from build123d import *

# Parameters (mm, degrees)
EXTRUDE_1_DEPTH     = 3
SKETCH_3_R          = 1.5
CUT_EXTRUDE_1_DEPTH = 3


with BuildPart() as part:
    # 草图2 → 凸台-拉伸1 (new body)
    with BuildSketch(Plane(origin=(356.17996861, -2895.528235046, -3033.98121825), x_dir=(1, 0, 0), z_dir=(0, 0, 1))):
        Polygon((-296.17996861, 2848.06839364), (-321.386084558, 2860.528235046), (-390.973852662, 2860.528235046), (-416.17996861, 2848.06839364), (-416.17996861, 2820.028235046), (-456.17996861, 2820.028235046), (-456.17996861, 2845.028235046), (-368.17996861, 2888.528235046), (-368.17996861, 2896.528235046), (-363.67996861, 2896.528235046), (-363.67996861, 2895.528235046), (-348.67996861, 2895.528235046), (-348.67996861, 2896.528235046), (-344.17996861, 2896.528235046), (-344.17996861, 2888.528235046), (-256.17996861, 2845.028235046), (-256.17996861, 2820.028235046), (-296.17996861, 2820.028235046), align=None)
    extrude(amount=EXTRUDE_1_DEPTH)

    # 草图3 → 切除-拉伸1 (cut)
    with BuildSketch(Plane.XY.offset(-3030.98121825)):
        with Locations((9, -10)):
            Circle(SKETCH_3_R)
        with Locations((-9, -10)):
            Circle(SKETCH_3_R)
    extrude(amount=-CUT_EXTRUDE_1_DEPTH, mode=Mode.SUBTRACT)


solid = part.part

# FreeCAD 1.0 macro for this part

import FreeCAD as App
import Part
import Sketcher


def add_polygon(sketch, points):
    """Adds a closed chain of lines whose ends are joined by coincident constraints."""
    first, n = sketch.GeometryCount, len(points)
    for a, b in zip(points, points[1:] + points[:1]):
        sketch.addGeometry(Part.LineSegment(App.Vector(*a, 0), App.Vector(*b, 0)), False)
    for i in range(n):
        sketch.addConstraint(Sketcher.Constraint("Coincident", first + i, 2, first + (i + 1) % n, 1))

doc = App.newDocument("Part")
params = doc.addObject("Spreadsheet::Sheet", "Params")
for row, (alias, value) in enumerate([
    ("sketch1_width", "40 mm"),
    ("sketch1_width2", "15 mm"),
    ("sketch1_height", "25 mm"),
    ("sketch1_height2", "8 mm"),
    ("sketch1_height3", "1 mm"),
    ("pad1_length", "3 mm"),
    ("sketch2_diameter", "3 mm"),
    ("pocket1_length", "3 mm"),
], start=1):
    params.set(f"A{row}", alias)
    params.set(f"B{row}", "=" + value)
    params.setAlias(f"B{row}", alias)

body = doc.addObject("PartDesign::Body", "Body")

# Sketch on XY plane
sketch1 = body.newObject("Sketcher::SketchObject", "Sketch")
sketch1.AttachmentSupport = (doc.getObject("XY_Plane"), [""])
sketch1.MapMode = "FlatFace"
sketch1.AttachmentOffset = App.Placement(App.Vector(0, 0, -3033.981218), App.Rotation())
add_polygon(sketch1, [(34.8, -35), (60, -47.5), (60, -75.5), (100, -75.5), (100, -50.5), (12, -7), (12, 1), (7.5, 1), (7.5, 0), (-7.5, 0), (-7.5, 1), (-12, 1), (-12, -7), (-100, -50.5), (-100, -75.5), (-60, -75.5), (-60, -47.5), (-34.8, -35)])  # lines 0-17
sketch1.addConstraint([
    Sketcher.Constraint("Vertical", 1),
    Sketcher.Constraint("Horizontal", 2),
    Sketcher.Constraint("Vertical", 3),
    Sketcher.Constraint("Vertical", 5),
    Sketcher.Constraint("Horizontal", 6),
    Sketcher.Constraint("Vertical", 7),
    Sketcher.Constraint("Horizontal", 8),
    Sketcher.Constraint("Vertical", 9),
    Sketcher.Constraint("Horizontal", 10),
    Sketcher.Constraint("Vertical", 11),
    Sketcher.Constraint("Vertical", 13),
    Sketcher.Constraint("Horizontal", 14),
    Sketcher.Constraint("Vertical", 15),
    Sketcher.Constraint("Horizontal", 17),
    Sketcher.Constraint("Symmetric", 7, 2, 8, 2, -1, 1),
    Sketcher.Constraint("Symmetric", 5, 2, 10, 2, -2),
    Sketcher.Constraint("Symmetric", 3, 2, 12, 2, -2),
    Sketcher.Constraint("Symmetric", 1, 2, 14, 2, -2),
    Sketcher.Constraint("Parallel", 0, 4),
    Sketcher.Constraint("Parallel", 12, 16),
    Sketcher.Constraint("Horizontal", 4, 2, 11, 2),
    Sketcher.Constraint("Horizontal", 0, 2, 15, 2),
    Sketcher.Constraint("DistanceX", 2, 1, 2, 2, 40.0),
    Sketcher.Constraint("DistanceX", 8, 2, 8, 1, 15.0),
    Sketcher.Constraint("DistanceY", 3, 1, 3, 2, 25.0),
    Sketcher.Constraint("DistanceY", 5, 1, 5, 2, 8.0),
    Sketcher.Constraint("DistanceY", 7, 2, 7, 1, 1.0),
    Sketcher.Constraint("DistanceX", 6, 2, 6, 1, 4.5),
    Sketcher.Constraint("DistanceX", -1, 1, 0, 2, 60.0),
    Sketcher.Constraint("DistanceY", 16, 2, -1, 1, 35.0),
    Sketcher.Constraint("DistanceY", 1, 2, -1, 1, 75.5),
    Sketcher.Constraint("DistanceX", 17, 1, 17, 2, 69.587768),
])
sketch1.setExpression("Constraints[40]", "Params.sketch1_width")
sketch1.setExpression("Constraints[41]", "Params.sketch1_width2")
sketch1.setExpression("Constraints[42]", "Params.sketch1_height")
sketch1.setExpression("Constraints[43]", "Params.sketch1_height2")
sketch1.setExpression("Constraints[44]", "Params.sketch1_height3")
pad1 = body.newObject("PartDesign::Pad", "Pad")
pad1.Profile = sketch1
pad1.setExpression("Length", "Params.pad1_length")

# Sketch on XY plane
sketch2 = body.newObject("Sketcher::SketchObject", "Sketch001")
sketch2.AttachmentSupport = (doc.getObject("XY_Plane"), [""])
sketch2.MapMode = "FlatFace"
sketch2.AttachmentOffset = App.Placement(App.Vector(0, 0, -3030.981218), App.Rotation())
sketch2.addGeometry([
    Part.Circle(App.Vector(9, -10, 0), App.Vector(0, 0, 1), 1.5),
    Part.Circle(App.Vector(-9, -10, 0), App.Vector(0, 0, 1), 1.5),
], False)
sketch2.addConstraint([
    Sketcher.Constraint("Equal", 0, 1),
    Sketcher.Constraint("Symmetric", 0, 3, 1, 3, -2),
    Sketcher.Constraint("Diameter", 0, 3.0),
    Sketcher.Constraint("DistanceX", -1, 1, 0, 3, 9.0),
    Sketcher.Constraint("DistanceY", 0, 3, -1, 1, 10.0),
])
sketch2.setExpression("Constraints[2]", "Params.sketch2_diameter")
pocket1 = body.newObject("PartDesign::Pocket", "Pocket")
pocket1.Profile = sketch2
pocket1.setExpression("Length", "Params.pocket1_length")

doc.recompute()
